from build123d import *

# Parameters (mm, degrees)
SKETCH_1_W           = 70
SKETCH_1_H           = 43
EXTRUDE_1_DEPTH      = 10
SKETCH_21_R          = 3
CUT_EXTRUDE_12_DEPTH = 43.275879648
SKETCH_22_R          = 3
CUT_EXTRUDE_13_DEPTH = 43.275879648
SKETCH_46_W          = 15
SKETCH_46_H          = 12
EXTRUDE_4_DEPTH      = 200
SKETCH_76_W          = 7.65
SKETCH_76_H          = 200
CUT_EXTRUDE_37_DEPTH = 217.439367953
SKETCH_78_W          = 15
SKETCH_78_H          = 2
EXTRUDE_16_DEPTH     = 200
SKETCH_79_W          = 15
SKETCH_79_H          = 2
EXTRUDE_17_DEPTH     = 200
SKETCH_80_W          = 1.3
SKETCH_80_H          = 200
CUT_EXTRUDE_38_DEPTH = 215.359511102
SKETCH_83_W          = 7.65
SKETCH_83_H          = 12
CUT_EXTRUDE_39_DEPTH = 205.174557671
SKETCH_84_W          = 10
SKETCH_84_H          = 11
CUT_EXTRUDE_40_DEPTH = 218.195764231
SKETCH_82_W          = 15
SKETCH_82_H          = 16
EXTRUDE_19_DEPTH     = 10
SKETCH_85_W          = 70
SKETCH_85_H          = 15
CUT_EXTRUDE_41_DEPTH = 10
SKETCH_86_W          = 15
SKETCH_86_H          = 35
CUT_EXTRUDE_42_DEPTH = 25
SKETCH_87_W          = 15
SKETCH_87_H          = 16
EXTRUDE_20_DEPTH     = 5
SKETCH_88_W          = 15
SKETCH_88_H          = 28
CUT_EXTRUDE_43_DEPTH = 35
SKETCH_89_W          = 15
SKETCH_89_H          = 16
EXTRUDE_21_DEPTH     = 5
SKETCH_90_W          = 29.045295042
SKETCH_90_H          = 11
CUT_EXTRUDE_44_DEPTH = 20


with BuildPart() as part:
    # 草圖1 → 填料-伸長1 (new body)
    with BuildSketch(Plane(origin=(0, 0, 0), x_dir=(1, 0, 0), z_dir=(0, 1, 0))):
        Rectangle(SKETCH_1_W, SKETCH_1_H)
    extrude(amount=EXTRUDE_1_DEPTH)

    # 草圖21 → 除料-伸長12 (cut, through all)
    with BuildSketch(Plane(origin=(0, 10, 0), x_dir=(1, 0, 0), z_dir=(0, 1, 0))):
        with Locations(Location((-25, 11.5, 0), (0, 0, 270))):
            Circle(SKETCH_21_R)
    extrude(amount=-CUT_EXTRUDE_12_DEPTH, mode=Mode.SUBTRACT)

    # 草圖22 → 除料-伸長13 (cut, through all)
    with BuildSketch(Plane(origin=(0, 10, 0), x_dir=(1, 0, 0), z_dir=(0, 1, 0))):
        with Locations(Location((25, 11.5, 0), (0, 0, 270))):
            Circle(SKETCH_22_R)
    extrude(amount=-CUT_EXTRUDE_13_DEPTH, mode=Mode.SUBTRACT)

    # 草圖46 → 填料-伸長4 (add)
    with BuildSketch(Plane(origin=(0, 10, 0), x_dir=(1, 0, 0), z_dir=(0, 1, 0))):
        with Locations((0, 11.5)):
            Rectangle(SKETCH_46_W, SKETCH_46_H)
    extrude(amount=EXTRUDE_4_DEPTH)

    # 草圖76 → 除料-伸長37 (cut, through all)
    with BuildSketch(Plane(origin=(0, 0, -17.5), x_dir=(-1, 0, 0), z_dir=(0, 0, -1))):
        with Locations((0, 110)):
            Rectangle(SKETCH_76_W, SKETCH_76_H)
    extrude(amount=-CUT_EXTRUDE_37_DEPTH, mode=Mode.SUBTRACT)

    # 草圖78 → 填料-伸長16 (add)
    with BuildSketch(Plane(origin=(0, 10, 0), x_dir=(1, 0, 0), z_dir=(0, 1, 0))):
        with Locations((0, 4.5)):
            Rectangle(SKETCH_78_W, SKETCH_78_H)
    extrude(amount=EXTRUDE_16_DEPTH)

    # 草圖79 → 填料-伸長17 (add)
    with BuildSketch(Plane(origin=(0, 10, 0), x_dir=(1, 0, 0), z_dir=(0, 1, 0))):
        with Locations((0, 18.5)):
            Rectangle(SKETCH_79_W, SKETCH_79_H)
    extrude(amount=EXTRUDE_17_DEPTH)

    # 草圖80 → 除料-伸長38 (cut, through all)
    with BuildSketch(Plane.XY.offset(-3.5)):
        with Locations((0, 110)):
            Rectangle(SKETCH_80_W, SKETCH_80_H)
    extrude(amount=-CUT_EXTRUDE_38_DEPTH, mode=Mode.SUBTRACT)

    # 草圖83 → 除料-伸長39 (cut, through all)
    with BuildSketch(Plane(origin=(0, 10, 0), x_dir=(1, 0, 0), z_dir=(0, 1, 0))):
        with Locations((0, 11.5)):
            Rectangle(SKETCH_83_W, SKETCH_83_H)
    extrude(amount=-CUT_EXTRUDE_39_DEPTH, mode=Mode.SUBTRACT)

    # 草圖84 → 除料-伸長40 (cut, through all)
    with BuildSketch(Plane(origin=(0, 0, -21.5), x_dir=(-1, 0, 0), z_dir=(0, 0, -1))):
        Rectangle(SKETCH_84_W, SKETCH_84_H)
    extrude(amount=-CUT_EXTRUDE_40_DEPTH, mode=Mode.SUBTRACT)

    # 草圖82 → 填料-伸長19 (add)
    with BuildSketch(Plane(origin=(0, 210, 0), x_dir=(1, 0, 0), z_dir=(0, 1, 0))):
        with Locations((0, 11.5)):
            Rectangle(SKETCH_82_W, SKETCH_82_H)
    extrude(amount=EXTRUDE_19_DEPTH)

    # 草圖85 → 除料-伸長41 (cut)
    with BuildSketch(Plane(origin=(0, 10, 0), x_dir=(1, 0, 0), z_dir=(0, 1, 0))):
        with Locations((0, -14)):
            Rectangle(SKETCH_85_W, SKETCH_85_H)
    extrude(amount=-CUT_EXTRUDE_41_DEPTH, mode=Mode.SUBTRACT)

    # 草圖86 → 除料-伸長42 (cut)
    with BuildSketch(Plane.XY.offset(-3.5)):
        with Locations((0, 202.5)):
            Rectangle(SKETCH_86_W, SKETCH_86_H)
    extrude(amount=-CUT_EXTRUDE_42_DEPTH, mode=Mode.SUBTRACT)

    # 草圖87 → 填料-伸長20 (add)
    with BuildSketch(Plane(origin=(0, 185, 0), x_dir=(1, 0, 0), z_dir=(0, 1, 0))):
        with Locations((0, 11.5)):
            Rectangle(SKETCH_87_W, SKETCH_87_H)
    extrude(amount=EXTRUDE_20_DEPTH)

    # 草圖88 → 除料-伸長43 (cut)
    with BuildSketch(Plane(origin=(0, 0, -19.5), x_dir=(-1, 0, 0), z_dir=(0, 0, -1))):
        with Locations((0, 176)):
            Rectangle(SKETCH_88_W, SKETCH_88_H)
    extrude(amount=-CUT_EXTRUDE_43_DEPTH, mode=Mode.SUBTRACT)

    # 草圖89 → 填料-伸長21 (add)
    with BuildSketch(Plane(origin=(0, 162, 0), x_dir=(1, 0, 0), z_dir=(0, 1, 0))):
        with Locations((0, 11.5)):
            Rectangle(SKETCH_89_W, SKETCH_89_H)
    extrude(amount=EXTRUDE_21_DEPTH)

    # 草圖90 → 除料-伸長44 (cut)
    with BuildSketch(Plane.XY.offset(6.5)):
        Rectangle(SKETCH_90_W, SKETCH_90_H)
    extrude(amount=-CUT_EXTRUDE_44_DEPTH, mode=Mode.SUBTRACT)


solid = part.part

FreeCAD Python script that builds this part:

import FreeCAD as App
import Part
import Sketcher
from FreeCAD import Vector

doc = App.newDocument("Part")
body = doc.addObject("PartDesign::Body", "Body")

# Sketch on XZ plane
sketch1 = doc.addObject("Sketcher::SketchObject", "Sketch")
body.addObject(sketch1)
sketch1.AttachmentSupport = (doc.XZ_Plane, [""])
sketch1.MapMode = "FlatFace"
sketch1.addGeometry(Part.LineSegment(Vector(-35, -21.5, 0), Vector(-35, 21.5, 0)), False)
sketch1.addGeometry(Part.LineSegment(Vector(-35, 21.5, 0), Vector(35, 21.5, 0)), False)
sketch1.addGeometry(Part.LineSegment(Vector(35, 21.5, 0), Vector(35, -21.5, 0)), False)
sketch1.addGeometry(Part.LineSegment(Vector(35, -21.5, 0), Vector(-35, -21.5, 0)), False)
sketch1.addConstraint(Sketcher.Constraint("Coincident", 0, 2, 1, 1))
sketch1.addConstraint(Sketcher.Constraint("Coincident", 1, 2, 2, 1))
sketch1.addConstraint(Sketcher.Constraint("Coincident", 2, 2, 3, 1))
sketch1.addConstraint(Sketcher.Constraint("Coincident", 3, 2, 0, 1))
sketch1.addConstraint(Sketcher.Constraint("Vertical", 0))
sketch1.addConstraint(Sketcher.Constraint("Horizontal", 1))
sketch1.addConstraint(Sketcher.Constraint("Vertical", 2))
sketch1.addConstraint(Sketcher.Constraint("Horizontal", 3))
sketch1.addConstraint(Sketcher.Constraint("Symmetric", 0, 2, 2, 2, -1, 1))
sketch1.addConstraint(Sketcher.Constraint("DistanceX", 1, 1, 1, 2, 70.0))
sketch1.addConstraint(Sketcher.Constraint("DistanceY", 0, 1, 0, 2, 43.0))
pad1 = doc.addObject("PartDesign::Pad", "Pad")
body.addObject(pad1)
pad1.Profile = sketch1
pad1.Length = 10
pad1.Reversed = True

# Sketch on XZ plane
sketch2 = doc.addObject("Sketcher::SketchObject", "Sketch001")
body.addObject(sketch2)
sketch2.AttachmentSupport = (doc.XZ_Plane, [""])
sketch2.MapMode = "FlatFace"
sketch2.AttachmentOffset = App.Placement(Vector(0, 0, -10), App.Rotation())
sketch2.addGeometry(Part.Circle(Vector(-25, -11.5, 0), Vector(0, 0, 1), 3), False)
sketch2.addConstraint(Sketcher.Constraint("Diameter", 0, 6.0))
sketch2.addConstraint(Sketcher.Constraint("DistanceX", 0, 3, -1, 1, 25.0))
sketch2.addConstraint(Sketcher.Constraint("DistanceY", 0, 3, -1, 1, 11.5))
pocket1 = doc.addObject("PartDesign::Pocket", "Pocket")
body.addObject(pocket1)
pocket1.Profile = sketch2
pocket1.Type = "ThroughAll"
pocket1.Reversed = True

# Sketch on XZ plane
sketch3 = doc.addObject("Sketcher::SketchObject", "Sketch002")
body.addObject(sketch3)
sketch3.AttachmentSupport = (doc.XZ_Plane, [""])
sketch3.MapMode = "FlatFace"
sketch3.AttachmentOffset = App.Placement(Vector(0, 0, -10), App.Rotation())
sketch3.addGeometry(Part.Circle(Vector(25, -11.5, 0), Vector(0, 0, 1), 3), False)
sketch3.addConstraint(Sketcher.Constraint("Diameter", 0, 6.0))
sketch3.addConstraint(Sketcher.Constraint("DistanceX", -1, 1, 0, 3, 25.0))
sketch3.addConstraint(Sketcher.Constraint("DistanceY", 0, 3, -1, 1, 11.5))
pocket2 = doc.addObject("PartDesign::Pocket", "Pocket001")
body.addObject(pocket2)
pocket2.Profile = sketch3
pocket2.Type = "ThroughAll"
pocket2.Reversed = True

# Sketch on XZ plane
sketch4 = doc.addObject("Sketcher::SketchObject", "Sketch003")
body.addObject(sketch4)
sketch4.AttachmentSupport = (doc.XZ_Plane, [""])
sketch4.MapMode = "FlatFace"
sketch4.AttachmentOffset = App.Placement(Vector(0, 0, -10), App.Rotation())
sketch4.addGeometry(Part.LineSegment(Vector(-7.5, -17.5, 0), Vector(-7.5, -5.5, 0)), False)
sketch4.addGeometry(Part.LineSegment(Vector(-7.5, -5.5, 0), Vector(7.5, -5.5, 0)), False)
sketch4.addGeometry(Part.LineSegment(Vector(7.5, -5.5, 0), Vector(7.5, -17.5, 0)), False)
sketch4.addGeometry(Part.LineSegment(Vector(7.5, -17.5, 0), Vector(-7.5, -17.5, 0)), False)
sketch4.addConstraint(Sketcher.Constraint("Coincident", 0, 2, 1, 1))
sketch4.addConstraint(Sketcher.Constraint("Coincident", 1, 2, 2, 1))
sketch4.addConstraint(Sketcher.Constraint("Coincident", 2, 2, 3, 1))
sketch4.addConstraint(Sketcher.Constraint("Coincident", 3, 2, 0, 1))
sketch4.addConstraint(Sketcher.Constraint("Vertical", 0))
sketch4.addConstraint(Sketcher.Constraint("Horizontal", 1))
sketch4.addConstraint(Sketcher.Constraint("Vertical", 2))
sketch4.addConstraint(Sketcher.Constraint("Horizontal", 3))
sketch4.addConstraint(Sketcher.Constraint("DistanceX", 1, 1, 1, 2, 15.0))
sketch4.addConstraint(Sketcher.Constraint("DistanceY", 0, 1, 0, 2, 12.0))
sketch4.addConstraint(Sketcher.Constraint("DistanceX", 0, 2, -1, 1, 7.5))
sketch4.addConstraint(Sketcher.Constraint("DistanceY", 0, 2, -1, 1, 5.5))
pad2 = doc.addObject("PartDesign::Pad", "Pad001")
body.addObject(pad2)
pad2.Profile = sketch4
pad2.Length = 200
pad2.Reversed = True

# Sketch on XY plane
sketch5 = doc.addObject("Sketcher::SketchObject", "Sketch004")
body.addObject(sketch5)
sketch5.AttachmentSupport = (doc.XY_Plane, [""])
sketch5.MapMode = "FlatFace"
sketch5.AttachmentOffset = App.Placement(Vector(0, 0, -17.5), App.Rotation())
sketch5.addGeometry(Part.LineSegment(Vector(3.825, 210, 0), Vector(3.825, 10, 0)), False)
sketch5.addGeometry(Part.LineSegment(Vector(3.825, 10, 0), Vector(-3.825, 10, 0)), False)
sketch5.addGeometry(Part.LineSegment(Vector(-3.825, 10, 0), Vector(-3.825, 210, 0)), False)
sketch5.addGeometry(Part.LineSegment(Vector(-3.825, 210, 0), Vector(3.825, 210, 0)), False)
sketch5.addConstraint(Sketcher.Constraint("Coincident", 0, 2, 1, 1))
sketch5.addConstraint(Sketcher.Constraint("Coincident", 1, 2, 2, 1))
sketch5.addConstraint(Sketcher.Constraint("Coincident", 2, 2, 3, 1))
sketch5.addConstraint(Sketcher.Constraint("Coincident", 3, 2, 0, 1))
sketch5.addConstraint(Sketcher.Constraint("Vertical", 0))
sketch5.addConstraint(Sketcher.Constraint("Horizontal", 1))
sketch5.addConstraint(Sketcher.Constraint("Vertical", 2))
sketch5.addConstraint(Sketcher.Constraint("Horizontal", 3))
sketch5.addConstraint(Sketcher.Constraint("DistanceY", 0, 2, 0, 1, 200.0))
sketch5.addConstraint(Sketcher.Constraint("DistanceY", -1, 1, 0, 2, 10.0))
sketch5.addConstraint(Sketcher.Constraint("DistanceX", 1, 2, 1, 1, 7.65))
sketch5.addConstraint(Sketcher.Constraint("DistanceX", -1, 1, 0, 2, 3.825))
pocket3 = doc.addObject("PartDesign::Pocket", "Pocket002")
body.addObject(pocket3)
pocket3.Profile = sketch5
pocket3.Type = "ThroughAll"
pocket3.Reversed = True

# Sketch on XZ plane
sketch6 = doc.addObject("Sketcher::SketchObject", "Sketch005")
body.addObject(sketch6)
sketch6.AttachmentSupport = (doc.XZ_Plane, [""])
sketch6.MapMode = "FlatFace"
sketch6.AttachmentOffset = App.Placement(Vector(0, 0, -10), App.Rotation())
sketch6.addGeometry(Part.LineSegment(Vector(-7.5, -5.5, 0), Vector(-7.5, -3.5, 0)), False)
sketch6.addGeometry(Part.LineSegment(Vector(-7.5, -3.5, 0), Vector(7.5, -3.5, 0)), False)
sketch6.addGeometry(Part.LineSegment(Vector(7.5, -3.5, 0), Vector(7.5, -5.5, 0)), False)
sketch6.addGeometry(Part.LineSegment(Vector(7.5, -5.5, 0), Vector(-7.5, -5.5, 0)), False)
sketch6.addConstraint(Sketcher.Constraint("Coincident", 0, 2, 1, 1))
sketch6.addConstraint(Sketcher.Constraint("Coincident", 1, 2, 2, 1))
sketch6.addConstraint(Sketcher.Constraint("Coincident", 2, 2, 3, 1))
sketch6.addConstraint(Sketcher.Constraint("Coincident", 3, 2, 0, 1))
sketch6.addConstraint(Sketcher.Constraint("Vertical", 0))
sketch6.addConstraint(Sketcher.Constraint("Horizontal", 1))
sketch6.addConstraint(Sketcher.Constraint("Vertical", 2))
sketch6.addConstraint(Sketcher.Constraint("Horizontal", 3))
sketch6.addConstraint(Sketcher.Constraint("DistanceX", 1, 1, 1, 2, 15.0))
sketch6.addConstraint(Sketcher.Constraint("DistanceY", 0, 1, 0, 2, 2.0))
sketch6.addConstraint(Sketcher.Constraint("DistanceX", 0, 2, -1, 1, 7.5))
sketch6.addConstraint(Sketcher.Constraint("DistanceY", 0, 2, -1, 1, 3.5))
pad3 = doc.addObject("PartDesign::Pad", "Pad002")
body.addObject(pad3)
pad3.Profile = sketch6
pad3.Length = 200
pad3.Reversed = True

# Sketch on XZ plane
sketch7 = doc.addObject("Sketcher::SketchObject", "Sketch006")
body.addObject(sketch7)
sketch7.AttachmentSupport = (doc.XZ_Plane, [""])
sketch7.MapMode = "FlatFace"
sketch7.AttachmentOffset = App.Placement(Vector(0, 0, -10), App.Rotation())
sketch7.addGeometry(Part.LineSegment(Vector(-7.5, -19.5, 0), Vector(-7.5, -17.5, 0)), False)
sketch7.addGeometry(Part.LineSegment(Vector(-7.5, -17.5, 0), Vector(7.5, -17.5, 0)), False)
sketch7.addGeometry(Part.LineSegment(Vector(7.5, -17.5, 0), Vector(7.5, -19.5, 0)), False)
sketch7.addGeometry(Part.LineSegment(Vector(7.5, -19.5, 0), Vector(-7.5, -19.5, 0)), False)
sketch7.addConstraint(Sketcher.Constraint("Coincident", 0, 2, 1, 1))
sketch7.addConstraint(Sketcher.Constraint("Coincident", 1, 2, 2, 1))
sketch7.addConstraint(Sketcher.Constraint("Coincident", 2, 2, 3, 1))
sketch7.addConstraint(Sketcher.Constraint("Coincident", 3, 2, 0, 1))
sketch7.addConstraint(Sketcher.Constraint("Vertical", 0))
sketch7.addConstraint(Sketcher.Constraint("Horizontal", 1))
sketch7.addConstraint(Sketcher.Constraint("Vertical", 2))
sketch7.addConstraint(Sketcher.Constraint("Horizontal", 3))
sketch7.addConstraint(Sketcher.Constraint("DistanceX", 1, 1, 1, 2, 15.0))
sketch7.addConstraint(Sketcher.Constraint("DistanceY", 0, 1, 0, 2, 2.0))
sketch7.addConstraint(Sketcher.Constraint("DistanceX", 0, 2, -1, 1, 7.5))
sketch7.addConstraint(Sketcher.Constraint("DistanceY", 0, 2, -1, 1, 17.5))
pad4 = doc.addObject("PartDesign::Pad", "Pad003")
body.addObject(pad4)
pad4.Profile = sketch7
pad4.Length = 200
pad4.Reversed = True

# Sketch on XY plane
sketch8 = doc.addObject("Sketcher::SketchObject", "Sketch007")
body.addObject(sketch8)
sketch8.AttachmentSupport = (doc.XY_Plane, [""])
sketch8.MapMode = "FlatFace"
sketch8.AttachmentOffset = App.Placement(Vector(0, 0, -3.5), App.Rotation())
sketch8.addGeometry(Part.LineSegment(Vector(-0.65, 210, 0), Vector(-0.65, 10, 0)), False)
sketch8.addGeometry(Part.LineSegment(Vector(-0.65, 10, 0), Vector(0.65, 10, 0)), False)
sketch8.addGeometry(Part.LineSegment(Vector(0.65, 10, 0), Vector(0.65, 210, 0)), False)
sketch8.addGeometry(Part.LineSegment(Vector(0.65, 210, 0), Vector(-0.65, 210, 0)), False)
sketch8.addConstraint(Sketcher.Constraint("Coincident", 0, 2, 1, 1))
sketch8.addConstraint(Sketcher.Constraint("Coincident", 1, 2, 2, 1))
sketch8.addConstraint(Sketcher.Constraint("Coincident", 2, 2, 3, 1))
sketch8.addConstraint(Sketcher.Constraint("Coincident", 3, 2, 0, 1))
sketch8.addConstraint(Sketcher.Constraint("Vertical", 0))
sketch8.addConstraint(Sketcher.Constraint("Horizontal", 1))
sketch8.addConstraint(Sketcher.Constraint("Vertical", 2))
sketch8.addConstraint(Sketcher.Constraint("Horizontal", 3))
sketch8.addConstraint(Sketcher.Constraint("DistanceY", 0, 2, 0, 1, 200.0))
sketch8.addConstraint(Sketcher.Constraint("DistanceX", 1, 1, 1, 2, 1.3))
sketch8.addConstraint(Sketcher.Constraint("DistanceY", -1, 1, 0, 2, 10.0))
sketch8.addConstraint(Sketcher.Constraint("DistanceX", 0, 2, -1, 1, 0.65))
pocket4 = doc.addObject("PartDesign::Pocket", "Pocket003")
body.addObject(pocket4)
pocket4.Profile = sketch8
pocket4.Type = "ThroughAll"

# Sketch on XZ plane
sketch9 = doc.addObject("Sketcher::SketchObject", "Sketch008")
body.addObject(sketch9)
sketch9.AttachmentSupport = (doc.XZ_Plane, [""])
sketch9.MapMode = "FlatFace"
sketch9.AttachmentOffset = App.Placement(Vector(0, 0, -10), App.Rotation())
sketch9.addGeometry(Part.LineSegment(Vector(-3.825, -17.5, 0), Vector(-3.825, -5.5, 0)), False)
sketch9.addGeometry(Part.LineSegment(Vector(-3.825, -5.5, 0), Vector(3.825, -5.5, 0)), False)
sketch9.addGeometry(Part.LineSegment(Vector(3.825, -5.5, 0), Vector(3.825, -17.5, 0)), False)
sketch9.addGeometry(Part.LineSegment(Vector(3.825, -17.5, 0), Vector(-3.825, -17.5, 0)), False)
sketch9.addConstraint(Sketcher.Constraint("Coincident", 0, 2, 1, 1))
sketch9.addConstraint(Sketcher.Constraint("Coincident", 1, 2, 2, 1))
sketch9.addConstraint(Sketcher.Constraint("Coincident", 2, 2, 3, 1))
sketch9.addConstraint(Sketcher.Constraint("Coincident", 3, 2, 0, 1))
sketch9.addConstraint(Sketcher.Constraint("Vertical", 0))
sketch9.addConstraint(Sketcher.Constraint("Horizontal", 1))
sketch9.addConstraint(Sketcher.Constraint("Vertical", 2))
sketch9.addConstraint(Sketcher.Constraint("Horizontal", 3))
sketch9.addConstraint(Sketcher.Constraint("DistanceY", 0, 1, 0, 2, 12.0))
sketch9.addConstraint(Sketcher.Constraint("DistanceX", 1, 1, 1, 2, 7.65))
sketch9.addConstraint(Sketcher.Constraint("DistanceY", 0, 2, -1, 1, 5.5))
sketch9.addConstraint(Sketcher.Constraint("DistanceX", 0, 2, -1, 1, 3.825))
pocket5 = doc.addObject("PartDesign::Pocket", "Pocket004")
body.addObject(pocket5)
pocket5.Profile = sketch9
pocket5.Type = "ThroughAll"
pocket5.Reversed = True

# Sketch on XY plane
sketch10 = doc.addObject("Sketcher::SketchObject", "Sketch009")
body.addObject(sketch10)
sketch10.AttachmentSupport = (doc.XY_Plane, [""])
sketch10.MapMode = "FlatFace"
sketch10.AttachmentOffset = App.Placement(Vector(0, 0, -21.5), App.Rotation())
sketch10.addGeometry(Part.LineSegment(Vector(5, 5.5, 0), Vector(5, -5.5, 0)), False)
sketch10.addGeometry(Part.LineSegment(Vector(5, -5.5, 0), Vector(-5, -5.5, 0)), False)
sketch10.addGeometry(Part.LineSegment(Vector(-5, -5.5, 0), Vector(-5, 5.5, 0)), False)
sketch10.addGeometry(Part.LineSegment(Vector(-5, 5.5, 0), Vector(5, 5.5, 0)), False)
sketch10.addConstraint(Sketcher.Constraint("Coincident", 0, 2, 1, 1))
sketch10.addConstraint(Sketcher.Constraint("Coincident", 1, 2, 2, 1))
sketch10.addConstraint(Sketcher.Constraint("Coincident", 2, 2, 3, 1))
sketch10.addConstraint(Sketcher.Constraint("Coincident", 3, 2, 0, 1))
sketch10.addConstraint(Sketcher.Constraint("Vertical", 0))
sketch10.addConstraint(Sketcher.Constraint("Horizontal", 1))
sketch10.addConstraint(Sketcher.Constraint("Vertical", 2))
sketch10.addConstraint(Sketcher.Constraint("Horizontal", 3))
sketch10.addConstraint(Sketcher.Constraint("Symmetric", 0, 2, 2, 2, -1, 1))
sketch10.addConstraint(Sketcher.Constraint("DistanceX", 1, 2, 1, 1, 10.0))
sketch10.addConstraint(Sketcher.Constraint("DistanceY", 0, 2, 0, 1, 11.0))
pocket6 = doc.addObject("PartDesign::Pocket", "Pocket005")
body.addObject(pocket6)
pocket6.Profile = sketch10
pocket6.Type = "ThroughAll"
pocket6.Reversed = True

# Sketch on XZ plane
sketch11 = doc.addObject("Sketcher::SketchObject", "Sketch010")
body.addObject(sketch11)
sketch11.AttachmentSupport = (doc.XZ_Plane, [""])
sketch11.MapMode = "FlatFace"
sketch11.AttachmentOffset = App.Placement(Vector(0, 0, -210), App.Rotation())
sketch11.addGeometry(Part.LineSegment(Vector(-7.5, -19.5, 0), Vector(-7.5, -3.5, 0)), False)
sketch11.addGeometry(Part.LineSegment(Vector(-7.5, -3.5, 0), Vector(7.5, -3.5, 0)), False)
sketch11.addGeometry(Part.LineSegment(Vector(7.5, -3.5, 0), Vector(7.5, -19.5, 0)), False)
sketch11.addGeometry(Part.LineSegment(Vector(7.5, -19.5, 0), Vector(-7.5, -19.5, 0)), False)
sketch11.addConstraint(Sketcher.Constraint("Coincident", 0, 2, 1, 1))
sketch11.addConstraint(Sketcher.Constraint("Coincident", 1, 2, 2, 1))
sketch11.addConstraint(Sketcher.Constraint("Coincident", 2, 2, 3, 1))
sketch11.addConstraint(Sketcher.Constraint("Coincident", 3, 2, 0, 1))
sketch11.addConstraint(Sketcher.Constraint("Vertical", 0))
sketch11.addConstraint(Sketcher.Constraint("Horizontal", 1))
sketch11.addConstraint(Sketcher.Constraint("Vertical", 2))
sketch11.addConstraint(Sketcher.Constraint("Horizontal", 3))
sketch11.addConstraint(Sketcher.Constraint("DistanceX", 1, 1, 1, 2, 15.0))
sketch11.addConstraint(Sketcher.Constraint("DistanceY", 0, 1, 0, 2, 16.0))
sketch11.addConstraint(Sketcher.Constraint("DistanceX", 0, 2, -1, 1, 7.5))
sketch11.addConstraint(Sketcher.Constraint("DistanceY", 0, 2, -1, 1, 3.5))
pad5 = doc.addObject("PartDesign::Pad", "Pad004")
body.addObject(pad5)
pad5.Profile = sketch11
pad5.Length = 10
pad5.Reversed = True

# Sketch on XZ plane
sketch12 = doc.addObject("Sketcher::SketchObject", "Sketch011")
body.addObject(sketch12)
sketch12.AttachmentSupport = (doc.XZ_Plane, [""])
sketch12.MapMode = "FlatFace"
sketch12.AttachmentOffset = App.Placement(Vector(0, 0, -10), App.Rotation())
sketch12.addGeometry(Part.LineSegment(Vector(-35, 6.5, 0), Vector(-35, 21.5, 0)), False)
sketch12.addGeometry(Part.LineSegment(Vector(-35, 21.5, 0), Vector(35, 21.5, 0)), False)
sketch12.addGeometry(Part.LineSegment(Vector(35, 21.5, 0), Vector(35, 6.5, 0)), False)
sketch12.addGeometry(Part.LineSegment(Vector(35, 6.5, 0), Vector(-35, 6.5, 0)), False)
sketch12.addConstraint(Sketcher.Constraint("Coincident", 0, 2, 1, 1))
sketch12.addConstraint(Sketcher.Constraint("Coincident", 1, 2, 2, 1))
sketch12.addConstraint(Sketcher.Constraint("Coincident", 2, 2, 3, 1))
sketch12.addConstraint(Sketcher.Constraint("Coincident", 3, 2, 0, 1))
sketch12.addConstraint(Sketcher.Constraint("Vertical", 0))
sketch12.addConstraint(Sketcher.Constraint("Horizontal", 1))
sketch12.addConstraint(Sketcher.Constraint("Vertical", 2))
sketch12.addConstraint(Sketcher.Constraint("Horizontal", 3))
sketch12.addConstraint(Sketcher.Constraint("DistanceX", 1, 1, 1, 2, 70.0))
sketch12.addConstraint(Sketcher.Constraint("DistanceY", 0, 1, 0, 2, 15.0))
sketch12.addConstraint(Sketcher.Constraint("DistanceX", 0, 2, -1, 1, 35.0))
sketch12.addConstraint(Sketcher.Constraint("DistanceY", -1, 1, 0, 2, 21.5))
pocket7 = doc.addObject("PartDesign::Pocket", "Pocket006")
body.addObject(pocket7)
pocket7.Profile = sketch12
pocket7.Length = 10
pocket7.Reversed = True

# Sketch on XY plane
sketch13 = doc.addObject("Sketcher::SketchObject", "Sketch012")
body.addObject(sketch13)
sketch13.AttachmentSupport = (doc.XY_Plane, [""])
sketch13.MapMode = "FlatFace"
sketch13.AttachmentOffset = App.Placement(Vector(0, 0, -3.5), App.Rotation())
sketch13.addGeometry(Part.LineSegment(Vector(-7.5, 220, 0), Vector(-7.5, 185, 0)), False)
sketch13.addGeometry(Part.LineSegment(Vector(-7.5, 185, 0), Vector(7.5, 185, 0)), False)
sketch13.addGeometry(Part.LineSegment(Vector(7.5, 185, 0), Vector(7.5, 220, 0)), False)
sketch13.addGeometry(Part.LineSegment(Vector(7.5, 220, 0), Vector(-7.5, 220, 0)), False)
sketch13.addConstraint(Sketcher.Constraint("Coincident", 0, 2, 1, 1))
sketch13.addConstraint(Sketcher.Constraint("Coincident", 1, 2, 2, 1))
sketch13.addConstraint(Sketcher.Constraint("Coincident", 2, 2, 3, 1))
sketch13.addConstraint(Sketcher.Constraint("Coincident", 3, 2, 0, 1))
sketch13.addConstraint(Sketcher.Constraint("Vertical", 0))
sketch13.addConstraint(Sketcher.Constraint("Horizontal", 1))
sketch13.addConstraint(Sketcher.Constraint("Vertical", 2))
sketch13.addConstraint(Sketcher.Constraint("Horizontal", 3))
sketch13.addConstraint(Sketcher.Constraint("DistanceX", 1, 1, 1, 2, 15.0))
sketch13.addConstraint(Sketcher.Constraint("DistanceY", 0, 2, 0, 1, 35.0))
sketch13.addConstraint(Sketcher.Constraint("DistanceY", -1, 1, 0, 2, 185.0))
sketch13.addConstraint(Sketcher.Constraint("DistanceX", 0, 2, -1, 1, 7.5))
pocket8 = doc.addObject("PartDesign::Pocket", "Pocket007")
body.addObject(pocket8)
pocket8.Profile = sketch13
pocket8.Length = 25

# Sketch on XZ plane
sketch14 = doc.addObject("Sketcher::SketchObject", "Sketch013")
body.addObject(sketch14)
sketch14.AttachmentSupport = (doc.XZ_Plane, [""])
sketch14.MapMode = "FlatFace"
sketch14.AttachmentOffset = App.Placement(Vector(0, 0, -185), App.Rotation())
sketch14.addGeometry(Part.LineSegment(Vector(-7.5, -19.5, 0), Vector(-7.5, -3.5, 0)), False)
sketch14.addGeometry(Part.LineSegment(Vector(-7.5, -3.5, 0), Vector(7.5, -3.5, 0)), False)
sketch14.addGeometry(Part.LineSegment(Vector(7.5, -3.5, 0), Vector(7.5, -19.5, 0)), False)
sketch14.addGeometry(Part.LineSegment(Vector(7.5, -19.5, 0), Vector(-7.5, -19.5, 0)), False)
sketch14.addConstraint(Sketcher.Constraint("Coincident", 0, 2, 1, 1))
sketch14.addConstraint(Sketcher.Constraint("Coincident", 1, 2, 2, 1))
sketch14.addConstraint(Sketcher.Constraint("Coincident", 2, 2, 3, 1))
sketch14.addConstraint(Sketcher.Constraint("Coincident", 3, 2, 0, 1))
sketch14.addConstraint(Sketcher.Constraint("Vertical", 0))
sketch14.addConstraint(Sketcher.Constraint("Horizontal", 1))
sketch14.addConstraint(Sketcher.Constraint("Vertical", 2))
sketch14.addConstraint(Sketcher.Constraint("Horizontal", 3))
sketch14.addConstraint(Sketcher.Constraint("DistanceX", 1, 1, 1, 2, 15.0))
sketch14.addConstraint(Sketcher.Constraint("DistanceY", 0, 1, 0, 2, 16.0))
sketch14.addConstraint(Sketcher.Constraint("DistanceX", 0, 2, -1, 1, 7.5))
sketch14.addConstraint(Sketcher.Constraint("DistanceY", 0, 2, -1, 1, 3.5))
pad6 = doc.addObject("PartDesign::Pad", "Pad005")
body.addObject(pad6)
pad6.Profile = sketch14
pad6.Length = 5
pad6.Reversed = True

# Sketch on XY plane
sketch15 = doc.addObject("Sketcher::SketchObject", "Sketch014")
body.addObject(sketch15)
sketch15.AttachmentSupport = (doc.XY_Plane, [""])
sketch15.MapMode = "FlatFace"
sketch15.AttachmentOffset = App.Placement(Vector(0, 0, -19.5), App.Rotation())
sketch15.addGeometry(Part.LineSegment(Vector(7.5, 190, 0), Vector(7.5, 162, 0)), False)
sketch15.addGeometry(Part.LineSegment(Vector(7.5, 162, 0), Vector(-7.5, 162, 0)), False)
sketch15.addGeometry(Part.LineSegment(Vector(-7.5, 162, 0), Vector(-7.5, 190, 0)), False)
sketch15.addGeometry(Part.LineSegment(Vector(-7.5, 190, 0), Vector(7.5, 190, 0)), False)
sketch15.addConstraint(Sketcher.Constraint("Coincident", 0, 2, 1, 1))
sketch15.addConstraint(Sketcher.Constraint("Coincident", 1, 2, 2, 1))
sketch15.addConstraint(Sketcher.Constraint("Coincident", 2, 2, 3, 1))
sketch15.addConstraint(Sketcher.Constraint("Coincident", 3, 2, 0, 1))
sketch15.addConstraint(Sketcher.Constraint("Vertical", 0))
sketch15.addConstraint(Sketcher.Constraint("Horizontal", 1))
sketch15.addConstraint(Sketcher.Constraint("Vertical", 2))
sketch15.addConstraint(Sketcher.Constraint("Horizontal", 3))
sketch15.addConstraint(Sketcher.Constraint("DistanceX", 1, 2, 1, 1, 15.0))
sketch15.addConstraint(Sketcher.Constraint("DistanceY", 0, 2, 0, 1, 28.0))
sketch15.addConstraint(Sketcher.Constraint("DistanceY", -1, 1, 0, 2, 162.0))
sketch15.addConstraint(Sketcher.Constraint("DistanceX", -1, 1, 0, 2, 7.5))
pocket9 = doc.addObject("PartDesign::Pocket", "Pocket008")
body.addObject(pocket9)
pocket9.Profile = sketch15
pocket9.Length = 35
pocket9.Reversed = True

# Sketch on XZ plane
sketch16 = doc.addObject("Sketcher::SketchObject", "Sketch015")
body.addObject(sketch16)
sketch16.AttachmentSupport = (doc.XZ_Plane, [""])
sketch16.MapMode = "FlatFace"
sketch16.AttachmentOffset = App.Placement(Vector(0, 0, -162), App.Rotation())
sketch16.addGeometry(Part.LineSegment(Vector(-7.5, -19.5, 0), Vector(-7.5, -3.5, 0)), False)
sketch16.addGeometry(Part.LineSegment(Vector(-7.5, -3.5, 0), Vector(7.5, -3.5, 0)), False)
sketch16.addGeometry(Part.LineSegment(Vector(7.5, -3.5, 0), Vector(7.5, -19.5, 0)), False)
sketch16.addGeometry(Part.LineSegment(Vector(7.5, -19.5, 0), Vector(-7.5, -19.5, 0)), False)
sketch16.addConstraint(Sketcher.Constraint("Coincident", 0, 2, 1, 1))
sketch16.addConstraint(Sketcher.Constraint("Coincident", 1, 2, 2, 1))
sketch16.addConstraint(Sketcher.Constraint("Coincident", 2, 2, 3, 1))
sketch16.addConstraint(Sketcher.Constraint("Coincident", 3, 2, 0, 1))
sketch16.addConstraint(Sketcher.Constraint("Vertical", 0))
sketch16.addConstraint(Sketcher.Constraint("Horizontal", 1))
sketch16.addConstraint(Sketcher.Constraint("Vertical", 2))
sketch16.addConstraint(Sketcher.Constraint("Horizontal", 3))
sketch16.addConstraint(Sketcher.Constraint("DistanceX", 1, 1, 1, 2, 15.0))
sketch16.addConstraint(Sketcher.Constraint("DistanceY", 0, 1, 0, 2, 16.0))
sketch16.addConstraint(Sketcher.Constraint("DistanceX", 0, 2, -1, 1, 7.5))
sketch16.addConstraint(Sketcher.Constraint("DistanceY", 0, 2, -1, 1, 3.5))
pad7 = doc.addObject("PartDesign::Pad", "Pad006")
body.addObject(pad7)
pad7.Profile = sketch16
pad7.Length = 5
pad7.Reversed = True

# Sketch on XY plane
sketch17 = doc.addObject("Sketcher::SketchObject", "Sketch016")
body.addObject(sketch17)
sketch17.AttachmentSupport = (doc.XY_Plane, [""])
sketch17.MapMode = "FlatFace"
sketch17.AttachmentOffset = App.Placement(Vector(0, 0, 6.5), App.Rotation())
sketch17.addGeometry(Part.LineSegment(Vector(-14.522648, 5.5, 0), Vector(-14.522648, -5.5, 0)), False)
sketch17.addGeometry(Part.LineSegment(Vector(-14.522648, -5.5, 0), Vector(14.522648, -5.5, 0)), False)
sketch17.addGeometry(Part.LineSegment(Vector(14.522648, -5.5, 0), Vector(14.522648, 5.5, 0)), False)
sketch17.addGeometry(Part.LineSegment(Vector(14.522648, 5.5, 0), Vector(-14.522648, 5.5, 0)), False)
sketch17.addConstraint(Sketcher.Constraint("Coincident", 0, 2, 1, 1))
sketch17.addConstraint(Sketcher.Constraint("Coincident", 1, 2, 2, 1))
sketch17.addConstraint(Sketcher.Constraint("Coincident", 2, 2, 3, 1))
sketch17.addConstraint(Sketcher.Constraint("Coincident", 3, 2, 0, 1))
sketch17.addConstraint(Sketcher.Constraint("Vertical", 0))
sketch17.addConstraint(Sketcher.Constraint("Horizontal", 1))
sketch17.addConstraint(Sketcher.Constraint("Vertical", 2))
sketch17.addConstraint(Sketcher.Constraint("Horizontal", 3))
sketch17.addConstraint(Sketcher.Constraint("Symmetric", 0, 2, 2, 2, -1, 1))
sketch17.addConstraint(Sketcher.Constraint("DistanceY", 0, 2, 0, 1, 11.0))
sketch17.addConstraint(Sketcher.Constraint("DistanceX", 1, 1, 1, 2, 29.045295))
pocket10 = doc.addObject("PartDesign::Pocket", "Pocket009")
body.addObject(pocket10)
pocket10.Profile = sketch17
pocket10.Length = 20

doc.recompute()
